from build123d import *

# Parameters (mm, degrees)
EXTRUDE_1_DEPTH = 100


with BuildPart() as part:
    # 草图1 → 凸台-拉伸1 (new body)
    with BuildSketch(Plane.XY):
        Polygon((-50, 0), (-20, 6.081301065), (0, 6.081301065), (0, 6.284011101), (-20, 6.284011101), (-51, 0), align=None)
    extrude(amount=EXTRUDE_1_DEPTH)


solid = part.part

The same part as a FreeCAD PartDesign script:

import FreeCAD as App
import Part
import Sketcher


def add_polygon(sketch, points):
    """Adds a closed chain of lines whose ends are joined by coincident constraints."""
    first, n = sketch.GeometryCount, len(points)
    for a, b in zip(points, points[1:] + points[:1]):
        sketch.addGeometry(Part.LineSegment(App.Vector(*a, 0), App.Vector(*b, 0)), False)
    for i in range(n):
        sketch.addConstraint(Sketcher.Constraint("Coincident", first + i, 2, first + (i + 1) % n, 1))

doc = App.newDocument("Part")
body = doc.addObject("PartDesign::Body", "Body")

sketch1 = body.newObject("Sketcher::SketchObject", "Sketch")
sketch1.AttachmentSupport = (doc.getObject("XY_Plane"), [""])
sketch1.MapMode = "FlatFace"
add_polygon(sketch1, [(-50, 0), (-20, 6.08), (0, 6.08), (0, 6.28), (-20, 6.28), (-51, 0)])
sketch1.addConstraint(Sketcher.Constraint("Horizontal", 1))
sketch1.addConstraint(Sketcher.Constraint("Vertical", 2))
sketch1.addConstraint(Sketcher.Constraint("Horizontal", 3))
sketch1.addConstraint(Sketcher.Constraint("Horizontal", 5))
sketch1.addConstraint(Sketcher.Constraint("PointOnObject", 1, 2, -2))
sketch1.addConstraint(Sketcher.Constraint("PointOnObject", 4, 2, -1))
sketch1.addConstraint(Sketcher.Constraint("Parallel", 0, 4))
sketch1.addConstraint(Sketcher.Constraint("Vertical", 0, 2, 3, 2))
sketch1.addConstraint(Sketcher.Constraint("DistanceX", 1, 1, 1, 2, 20.0))
sketch1.addConstraint(Sketcher.Constraint("DistanceX", 5, 1, 5, 2, 1.0))
sketch1.addConstraint(Sketcher.Constraint("DistanceX", 4, 2, -1, 1, 51.0))
sketch1.addConstraint(Sketcher.Constraint("DistanceY", 2, 1, 2, 2, 0.20271))
pad1 = body.newObject("PartDesign::Pad", "Pad")
pad1.Profile = sketch1
pad1.Length = 100

doc.recompute()
